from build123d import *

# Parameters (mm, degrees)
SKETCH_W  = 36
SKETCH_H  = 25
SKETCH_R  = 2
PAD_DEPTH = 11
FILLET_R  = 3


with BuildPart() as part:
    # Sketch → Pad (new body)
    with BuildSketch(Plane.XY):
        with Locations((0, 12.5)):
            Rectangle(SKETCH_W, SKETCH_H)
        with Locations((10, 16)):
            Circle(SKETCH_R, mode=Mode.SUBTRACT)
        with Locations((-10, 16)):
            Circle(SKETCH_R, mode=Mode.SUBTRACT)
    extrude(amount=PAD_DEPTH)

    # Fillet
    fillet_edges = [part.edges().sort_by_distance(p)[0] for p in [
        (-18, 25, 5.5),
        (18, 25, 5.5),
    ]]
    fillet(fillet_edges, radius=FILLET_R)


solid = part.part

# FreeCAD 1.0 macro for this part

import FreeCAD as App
import Part
import Sketcher


def edges_at(feature, points):
    """Names of the edges that pass closest to the given points."""
    edges = feature.Shape.Edges
    near = lambda p: min(range(len(edges)), key=lambda i: edges[i].distToShape(Part.Vertex(*p))[0])
    return sorted({f"Edge{near(p) + 1}" for p in points})

doc = App.newDocument("Part")
body = doc.addObject("PartDesign::Body", "Body")

# Sketch on XY plane
sketch1 = body.newObject("Sketcher::SketchObject", "Sketch")
sketch1.AttachmentSupport = (doc.getObject("XY_Plane"), [""])
sketch1.MapMode = "FlatFace"
sketch1.addGeometry([
    Part.LineSegment(App.Vector(-18, 25, 0), App.Vector(-18, 0, 0)),  # 0
    Part.LineSegment(App.Vector(-18, 0, 0), App.Vector(18, 0, 0)),  # 1
    Part.LineSegment(App.Vector(18, 0, 0), App.Vector(18, 25, 0)),  # 2
    Part.LineSegment(App.Vector(18, 25, 0), App.Vector(-18, 25, 0)),  # 3
    Part.Circle(App.Vector(-10, 16, 0), App.Vector(0, 0, 1), 2),  # 4
    Part.Circle(App.Vector(10, 16, 0), App.Vector(0, 0, 1), 2),  # 5
], False)
sketch1.addConstraint([
    Sketcher.Constraint("Coincident", 0, 2, 1, 1),
    Sketcher.Constraint("Coincident", 1, 2, 2, 1),
    Sketcher.Constraint("Coincident", 2, 2, 3, 1),
    Sketcher.Constraint("Coincident", 3, 2, 0, 1),
    Sketcher.Constraint("Vertical", 0),
    Sketcher.Constraint("Horizontal", 1),
    Sketcher.Constraint("Vertical", 2),
    Sketcher.Constraint("Horizontal", 3),
    Sketcher.Constraint("Equal", 4, 5),
    Sketcher.Constraint("Symmetric", 0, 2, 1, 2, -1, 1),
    Sketcher.Constraint("Symmetric", 4, 3, 5, 3, -2),
    Sketcher.Constraint("Diameter", 4, 4.0),
    Sketcher.Constraint("DistanceX", 1, 1, 1, 2, 36.0),
    Sketcher.Constraint("DistanceY", 0, 2, 0, 1, 25.0),
    Sketcher.Constraint("DistanceX", 4, 3, -1, 1, 10.0),
    Sketcher.Constraint("DistanceY", -1, 1, 4, 3, 16.0),
])
pad1 = body.newObject("PartDesign::Pad", "Pad")
pad1.Profile = sketch1
pad1.Length = 11
doc.recompute()

fillet = body.newObject("PartDesign::Fillet", "Fillet")
fillet.Base = (pad1, edges_at(pad1, [(-18, 25, 5.5), (18, 25, 5.5)]))
fillet.Radius = 3

doc.recompute()
